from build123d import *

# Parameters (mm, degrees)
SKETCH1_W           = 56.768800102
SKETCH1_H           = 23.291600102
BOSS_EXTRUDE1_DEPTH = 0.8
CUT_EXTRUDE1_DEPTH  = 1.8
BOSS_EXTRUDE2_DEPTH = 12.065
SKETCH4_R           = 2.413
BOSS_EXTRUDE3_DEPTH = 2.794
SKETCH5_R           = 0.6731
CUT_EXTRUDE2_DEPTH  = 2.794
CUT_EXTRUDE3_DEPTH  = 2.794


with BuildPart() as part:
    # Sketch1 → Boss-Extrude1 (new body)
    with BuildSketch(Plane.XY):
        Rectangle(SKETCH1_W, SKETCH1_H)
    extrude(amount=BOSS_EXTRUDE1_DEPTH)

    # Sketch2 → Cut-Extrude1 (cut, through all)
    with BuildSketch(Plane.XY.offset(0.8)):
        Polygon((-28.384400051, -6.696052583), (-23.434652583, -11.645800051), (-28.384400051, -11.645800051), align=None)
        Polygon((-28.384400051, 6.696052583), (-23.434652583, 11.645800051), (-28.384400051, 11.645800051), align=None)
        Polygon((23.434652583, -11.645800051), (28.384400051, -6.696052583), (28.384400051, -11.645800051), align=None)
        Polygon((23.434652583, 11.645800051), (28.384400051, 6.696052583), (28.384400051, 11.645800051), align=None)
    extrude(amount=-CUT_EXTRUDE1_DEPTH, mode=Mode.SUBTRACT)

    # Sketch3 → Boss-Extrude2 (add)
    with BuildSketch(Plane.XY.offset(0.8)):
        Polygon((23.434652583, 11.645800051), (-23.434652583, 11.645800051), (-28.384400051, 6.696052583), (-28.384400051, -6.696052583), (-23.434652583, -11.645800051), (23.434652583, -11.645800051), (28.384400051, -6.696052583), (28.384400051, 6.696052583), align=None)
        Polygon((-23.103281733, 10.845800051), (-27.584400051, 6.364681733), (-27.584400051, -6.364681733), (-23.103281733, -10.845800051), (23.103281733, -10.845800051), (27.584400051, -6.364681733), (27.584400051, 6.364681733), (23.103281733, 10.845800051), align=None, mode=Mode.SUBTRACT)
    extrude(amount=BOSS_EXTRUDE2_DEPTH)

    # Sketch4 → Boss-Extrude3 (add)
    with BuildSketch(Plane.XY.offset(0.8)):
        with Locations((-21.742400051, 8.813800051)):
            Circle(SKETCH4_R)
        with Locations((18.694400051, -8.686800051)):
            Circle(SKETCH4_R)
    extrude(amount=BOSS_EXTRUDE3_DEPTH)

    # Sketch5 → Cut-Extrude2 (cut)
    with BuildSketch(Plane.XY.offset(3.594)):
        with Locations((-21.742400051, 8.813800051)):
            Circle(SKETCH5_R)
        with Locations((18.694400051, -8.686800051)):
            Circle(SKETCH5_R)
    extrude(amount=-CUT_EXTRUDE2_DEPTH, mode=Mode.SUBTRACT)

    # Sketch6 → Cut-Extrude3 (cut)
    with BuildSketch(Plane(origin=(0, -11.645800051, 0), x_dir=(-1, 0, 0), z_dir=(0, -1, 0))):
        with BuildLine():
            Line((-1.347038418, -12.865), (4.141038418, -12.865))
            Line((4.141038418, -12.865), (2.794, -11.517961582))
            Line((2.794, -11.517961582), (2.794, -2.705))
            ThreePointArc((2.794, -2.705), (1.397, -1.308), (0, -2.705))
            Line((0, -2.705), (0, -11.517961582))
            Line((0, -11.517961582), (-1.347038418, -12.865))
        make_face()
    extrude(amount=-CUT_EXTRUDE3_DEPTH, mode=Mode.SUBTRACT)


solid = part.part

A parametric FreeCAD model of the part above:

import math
import FreeCAD as App
import Part
import Sketcher
Q = App.Units.Quantity

doc = App.newDocument("Part")
params = doc.addObject("Spreadsheet::Sheet", "Params")
for row, (alias, value) in enumerate([
    ("pad1_length", "0.8 mm"),
    ("pad2_length", "0.475 in"),
    ("sketch4_diameter", "0.19 in"),
    ("pad3_length", "0.11 in"),
    ("sketch5_diameter", "0.053 in"),
    ("pocket2_length", "0.11 in"),
    ("sketch6_radius", "0.055 in"),
    ("sketch6_length", "0.075 in"),
    ("pocket3_length", "0.11 in"),
], start=1):
    params.set(f"A{row}", alias)
    params.set(f"B{row}", "=" + value)
    params.setAlias(f"B{row}", alias)

body = doc.addObject("PartDesign::Body", "Body")

sketch1 = doc.addObject("Sketcher::SketchObject", "Sketch")
body.addObject(sketch1)
sketch1.AttachmentSupport = (doc.XY_Plane, [""])
sketch1.MapMode = "FlatFace"
sketch1.addGeometry([
    Part.LineSegment(App.Vector(-28, 12, 0), App.Vector(-28, -12, 0)),
    Part.LineSegment(App.Vector(-28, -12, 0), App.Vector(28, -12, 0)),
    Part.LineSegment(App.Vector(28, -12, 0), App.Vector(28, 12, 0)),
    Part.LineSegment(App.Vector(28, 12, 0), App.Vector(-28, 12, 0)),
], False)
sketch1.addConstraint([
    Sketcher.Constraint("Coincident", 0, 2, 1, 1),
    Sketcher.Constraint("Coincident", 1, 2, 2, 1),
    Sketcher.Constraint("Coincident", 2, 2, 3, 1),
    Sketcher.Constraint("Coincident", 3, 2, 0, 1),
    Sketcher.Constraint("Vertical", 0),
    Sketcher.Constraint("Horizontal", 1),
    Sketcher.Constraint("Vertical", 2),
    Sketcher.Constraint("Horizontal", 3),
    Sketcher.Constraint("Symmetric", 0, 2, 2, 2, -1, 1),
    Sketcher.Constraint("DistanceX", 1, 1, 1, 2, Q("56.7688 mm")),
    Sketcher.Constraint("DistanceY", 0, 2, 0, 1, Q("23.2916 mm")),
])
pad1 = doc.addObject("PartDesign::Pad", "Pad")
body.addObject(pad1)
pad1.Profile = sketch1
pad1.setExpression("Length", "Params.pad1_length")

sketch2 = doc.addObject("Sketcher::SketchObject", "Sketch001")
body.addObject(sketch2)
sketch2.AttachmentSupport = (doc.XY_Plane, [""])
sketch2.MapMode = "FlatFace"
sketch2.AttachmentOffset = App.Placement(App.Vector(0, 0, 0.8), App.Rotation())
sketch2.addGeometry([
    Part.LineSegment(App.Vector(-23.4, -11.6, 0), App.Vector(-28.4, -6.7, 0)),
    Part.LineSegment(App.Vector(-28.4, -6.7, 0), App.Vector(-28.4, -11.6, 0)),
    Part.LineSegment(App.Vector(-28.4, -11.6, 0), App.Vector(-23.4, -11.6, 0)),
    Part.LineSegment(App.Vector(-28.4, 6.7, 0), App.Vector(-23.4, 11.6, 0)),
    Part.LineSegment(App.Vector(-23.4, 11.6, 0), App.Vector(-28.4, 11.6, 0)),
    Part.LineSegment(App.Vector(-28.4, 11.6, 0), App.Vector(-28.4, 6.7, 0)),
    Part.LineSegment(App.Vector(28.4, -6.7, 0), App.Vector(23.4, -11.6, 0)),
    Part.LineSegment(App.Vector(23.4, -11.6, 0), App.Vector(28.4, -11.6, 0)),
    Part.LineSegment(App.Vector(28.4, -11.6, 0), App.Vector(28.4, -6.7, 0)),
    Part.LineSegment(App.Vector(23.4, 11.6, 0), App.Vector(28.4, 6.7, 0)),
    Part.LineSegment(App.Vector(28.4, 6.7, 0), App.Vector(28.4, 11.6, 0)),
    Part.LineSegment(App.Vector(28.4, 11.6, 0), App.Vector(23.4, 11.6, 0)),
], False)
sketch2.addConstraint([
    Sketcher.Constraint("Coincident", 0, 2, 1, 1),
    Sketcher.Constraint("Coincident", 1, 2, 2, 1),
    Sketcher.Constraint("Coincident", 2, 2, 0, 1),
    Sketcher.Constraint("Coincident", 3, 2, 4, 1),
    Sketcher.Constraint("Coincident", 4, 2, 5, 1),
    Sketcher.Constraint("Coincident", 5, 2, 3, 1),
    Sketcher.Constraint("Coincident", 6, 2, 7, 1),
    Sketcher.Constraint("Coincident", 7, 2, 8, 1),
    Sketcher.Constraint("Coincident", 8, 2, 6, 1),
    Sketcher.Constraint("Coincident", 9, 2, 10, 1),
    Sketcher.Constraint("Coincident", 10, 2, 11, 1),
    Sketcher.Constraint("Coincident", 11, 2, 9, 1),
    Sketcher.Constraint("Vertical", 1),
    Sketcher.Constraint("Horizontal", 2),
    Sketcher.Constraint("Horizontal", 4),
    Sketcher.Constraint("Vertical", 5),
    Sketcher.Constraint("Horizontal", 7),
    Sketcher.Constraint("Vertical", 8),
    Sketcher.Constraint("Vertical", 10),
    Sketcher.Constraint("Horizontal", 11),
    Sketcher.Constraint("Symmetric", 3, 2, 6, 2, -1, 1),
    Sketcher.Constraint("Symmetric", 5, 2, 8, 2, -1, 1),
    Sketcher.Constraint("Symmetric", 0, 2, 9, 2, -1, 1),
    Sketcher.Constraint("Symmetric", 2, 2, 11, 2, -1, 1),
    Sketcher.Constraint("Symmetric", 2, 2, 6, 2, -2),
    Sketcher.Constraint("Symmetric", 0, 2, 8, 2, -2),
    Sketcher.Constraint("Perpendicular", 0, 3),
    Sketcher.Constraint("Distance", 0, Q("7 mm")),
    Sketcher.Constraint("DistanceX", 0, 2, -1, 1, Q("28.3844 mm")),
    Sketcher.Constraint("DistanceY", 1, 2, -1, 1, Q("11.6458 mm")),
])
pocket1 = doc.addObject("PartDesign::Pocket", "Pocket")
body.addObject(pocket1)
pocket1.Profile = sketch2
pocket1.Type = "ThroughAll"

sketch3 = doc.addObject("Sketcher::SketchObject", "Sketch002")
body.addObject(sketch3)
sketch3.AttachmentSupport = (doc.XY_Plane, [""])
sketch3.MapMode = "FlatFace"
sketch3.AttachmentOffset = App.Placement(App.Vector(0, 0, 0.8), App.Rotation())
sketch3.addGeometry([
    Part.LineSegment(App.Vector(23, 12, 0), App.Vector(-23, 12, 0)),
    Part.LineSegment(App.Vector(-23, 12, 0), App.Vector(-28, 7, 0)),
    Part.LineSegment(App.Vector(-28, 7, 0), App.Vector(-28, -7, 0)),
    Part.LineSegment(App.Vector(-28, -7, 0), App.Vector(-23, -12, 0)),
    Part.LineSegment(App.Vector(-23, -12, 0), App.Vector(23, -12, 0)),
    Part.LineSegment(App.Vector(23, -12, 0), App.Vector(28, -7, 0)),
    Part.LineSegment(App.Vector(28, -7, 0), App.Vector(28, 7, 0)),
    Part.LineSegment(App.Vector(28, 7, 0), App.Vector(23, 12, 0)),
    Part.LineSegment(App.Vector(-28, 6, 0), App.Vector(-23, 11, 0)),
    Part.LineSegment(App.Vector(-23, 11, 0), App.Vector(23, 11, 0)),
    Part.LineSegment(App.Vector(23, 11, 0), App.Vector(28, 6, 0)),
    Part.LineSegment(App.Vector(28, 6, 0), App.Vector(28, -6, 0)),
    Part.LineSegment(App.Vector(28, -6, 0), App.Vector(23, -11, 0)),
    Part.LineSegment(App.Vector(23, -11, 0), App.Vector(-23, -11, 0)),
    Part.LineSegment(App.Vector(-23, -11, 0), App.Vector(-28, -6, 0)),
    Part.LineSegment(App.Vector(-28, -6, 0), App.Vector(-28, 6, 0)),
], False)
sketch3.addConstraint([
    Sketcher.Constraint("Coincident", 0, 2, 1, 1),
    Sketcher.Constraint("Coincident", 1, 2, 2, 1),
    Sketcher.Constraint("Coincident", 2, 2, 3, 1),
    Sketcher.Constraint("Coincident", 3, 2, 4, 1),
    Sketcher.Constraint("Coincident", 4, 2, 5, 1),
    Sketcher.Constraint("Coincident", 5, 2, 6, 1),
    Sketcher.Constraint("Coincident", 6, 2, 7, 1),
    Sketcher.Constraint("Coincident", 7, 2, 0, 1),
    Sketcher.Constraint("Coincident", 8, 2, 9, 1),
    Sketcher.Constraint("Coincident", 9, 2, 10, 1),
    Sketcher.Constraint("Coincident", 10, 2, 11, 1),
    Sketcher.Constraint("Coincident", 11, 2, 12, 1),
    Sketcher.Constraint("Coincident", 12, 2, 13, 1),
    Sketcher.Constraint("Coincident", 13, 2, 14, 1),
    Sketcher.Constraint("Coincident", 14, 2, 15, 1),
    Sketcher.Constraint("Coincident", 15, 2, 8, 1),
    Sketcher.Constraint("Horizontal", 0),
    Sketcher.Constraint("Vertical", 2),
    Sketcher.Constraint("Horizontal", 4),
    Sketcher.Constraint("Vertical", 6),
    Sketcher.Constraint("Horizontal", 9),
    Sketcher.Constraint("Vertical", 11),
    Sketcher.Constraint("Horizontal", 13),
    Sketcher.Constraint("Vertical", 15),
    Sketcher.Constraint("Symmetric", 0, 2, 4, 2, -1, 1),
    Sketcher.Constraint("Symmetric", 1, 2, 5, 2, -1, 1),
    Sketcher.Constraint("Symmetric", 8, 2, 12, 2, -1, 1),
    Sketcher.Constraint("Symmetric", 10, 2, 14, 2, -1, 1),
    Sketcher.Constraint("Perpendicular", 1, 3),
    Sketcher.Constraint("Perpendicular", 5, 7),
    Sketcher.Constraint("Perpendicular", 7, 8),
    Sketcher.Constraint("Perpendicular", 8, 10),
    Sketcher.Constraint("Perpendicular", 10, 12),
    Sketcher.Constraint("Perpendicular", 12, 14),
    Sketcher.Constraint("Horizontal", 2, 2, 5, 2),
    Sketcher.Constraint("Horizontal", 1, 2, 6, 2),
    Sketcher.Constraint("Horizontal", 11, 2, 14, 2),
    Sketcher.Constraint("Vertical", 0, 2, 3, 2),
    Sketcher.Constraint("DistanceY", -1, 1, 8, 2, Q("0.427 in")),
    Sketcher.Constraint("DistanceX", -1, 1, 10, 2, Q("1.086 in")),
    Sketcher.Constraint("Distance", 1, Q("7 mm")),
    Sketcher.Constraint("DistanceY", -1, 1, 0, 2, Q("11.6458 mm")),
    Sketcher.Constraint("DistanceX", 1, 2, -1, 1, Q("28.3844 mm")),
    Sketcher.Constraint("Distance", 8, Q("6.337258 mm")),
])
pad2 = doc.addObject("PartDesign::Pad", "Pad001")
body.addObject(pad2)
pad2.Profile = sketch3
pad2.setExpression("Length", "Params.pad2_length")

sketch4 = doc.addObject("Sketcher::SketchObject", "Sketch003")
body.addObject(sketch4)
sketch4.AttachmentSupport = (doc.XY_Plane, [""])
sketch4.MapMode = "FlatFace"
sketch4.AttachmentOffset = App.Placement(App.Vector(0, 0, 0.8), App.Rotation())
sketch4.addGeometry([
    Part.Circle(App.Vector(-21.7, 8.8, 0), App.Vector(0, 0, 1), 2.4),
    Part.Circle(App.Vector(18.7, -8.7, 0), App.Vector(0, 0, 1), 2.4),
], False)
sketch4.addConstraint([
    Sketcher.Constraint("Equal", 0, 1),
    Sketcher.Constraint("Diameter", 0, Q("0.19 in")),
    Sketcher.Constraint("DistanceX", 0, 3, -1, 1, Q("0.856 in")),
    Sketcher.Constraint("DistanceY", -1, 1, 0, 3, Q("0.347 in")),
    Sketcher.Constraint("DistanceX", -1, 1, 1, 3, Q("0.736 in")),
    Sketcher.Constraint("DistanceY", 1, 3, -1, 1, Q("0.342 in")),
])
sketch4.setExpression("Constraints[1]", "Params.sketch4_diameter")
pad3 = doc.addObject("PartDesign::Pad", "Pad002")
body.addObject(pad3)
pad3.Profile = sketch4
pad3.setExpression("Length", "Params.pad3_length")

sketch5 = doc.addObject("Sketcher::SketchObject", "Sketch004")
body.addObject(sketch5)
sketch5.AttachmentSupport = (doc.XY_Plane, [""])
sketch5.MapMode = "FlatFace"
sketch5.AttachmentOffset = App.Placement(App.Vector(0, 0, 3.594), App.Rotation())
sketch5.addGeometry([
    Part.Circle(App.Vector(-21.7, 8.8, 0), App.Vector(0, 0, 1), 0.7),
    Part.Circle(App.Vector(18.7, -8.7, 0), App.Vector(0, 0, 1), 0.7),
], False)
sketch5.addConstraint([
    Sketcher.Constraint("Equal", 0, 1),
    Sketcher.Constraint("Diameter", 0, Q("0.053 in")),
    Sketcher.Constraint("DistanceX", 0, 3, -1, 1, Q("0.856 in")),
    Sketcher.Constraint("DistanceY", -1, 1, 0, 3, Q("0.347 in")),
    Sketcher.Constraint("DistanceX", -1, 1, 1, 3, Q("0.736 in")),
    Sketcher.Constraint("DistanceY", 1, 3, -1, 1, Q("0.342 in")),
])
sketch5.setExpression("Constraints[1]", "Params.sketch5_diameter")
pocket2 = doc.addObject("PartDesign::Pocket", "Pocket001")
body.addObject(pocket2)
pocket2.Profile = sketch5
pocket2.setExpression("Length", "Params.pocket2_length")

sketch6 = doc.addObject("Sketcher::SketchObject", "Sketch005")
body.addObject(sketch6)
sketch6.AttachmentSupport = (doc.XZ_Plane, [""])
sketch6.MapMode = "FlatFace"
sketch6.AttachmentOffset = App.Placement(App.Vector(0, 0, 11.6458), App.Rotation())
sketch6.addGeometry([
    Part.LineSegment(App.Vector(1.3, 12.9, 0), App.Vector(-4.1, 12.9, 0)),
    Part.LineSegment(App.Vector(-4.1, 12.9, 0), App.Vector(-2.8, 11.5, 0)),
    Part.LineSegment(App.Vector(-2.8, 11.5, 0), App.Vector(-2.8, 2.7, 0)),
    Part.ArcOfCircle(Part.Circle(App.Vector(-1.4, 2.7, 0), App.Vector(0, 0, 1), 1.4), math.radians(180), math.radians(360)),
    Part.LineSegment(App.Vector(0, 2.7, 0), App.Vector(0, 11.5, 0)),
    Part.LineSegment(App.Vector(0, 11.5, 0), App.Vector(1.3, 12.9, 0)),
], False)
sketch6.addConstraint([
    Sketcher.Constraint("Coincident", 0, 2, 1, 1),
    Sketcher.Constraint("Coincident", 1, 2, 2, 1),
    Sketcher.Constraint("Tangent", 2, 2, 3, 1),
    Sketcher.Constraint("Tangent", 3, 2, 4, 1),
    Sketcher.Constraint("Coincident", 4, 2, 5, 1),
    Sketcher.Constraint("Coincident", 5, 2, 0, 1),
    Sketcher.Constraint("Horizontal", 0),
    Sketcher.Constraint("Vertical", 2),
    Sketcher.Constraint("Vertical", 4),
    Sketcher.Constraint("PointOnObject", 3, 2, -2),
    Sketcher.Constraint("Perpendicular", 1, 5),
    Sketcher.Constraint("Horizontal", 1, 2, 4, 2),
    Sketcher.Constraint("Equal", 1, 5),
    Sketcher.Constraint("Radius", 3, Q("0.055 in")),
    Sketcher.Constraint("DistanceY", 3, 3, 0, 2, Q("0.4 in")),
    Sketcher.Constraint("Distance", 1, Q("0.075 in")),
    Sketcher.Constraint("DistanceY", -1, 1, 3, 3, Q("2.705 mm")),
])
sketch6.setExpression("Constraints[13]", "Params.sketch6_radius")
sketch6.setExpression("Constraints[15]", "Params.sketch6_length")
pocket3 = doc.addObject("PartDesign::Pocket", "Pocket002")
body.addObject(pocket3)
pocket3.Profile = sketch6
pocket3.setExpression("Length", "Params.pocket3_length")

doc.recompute()
